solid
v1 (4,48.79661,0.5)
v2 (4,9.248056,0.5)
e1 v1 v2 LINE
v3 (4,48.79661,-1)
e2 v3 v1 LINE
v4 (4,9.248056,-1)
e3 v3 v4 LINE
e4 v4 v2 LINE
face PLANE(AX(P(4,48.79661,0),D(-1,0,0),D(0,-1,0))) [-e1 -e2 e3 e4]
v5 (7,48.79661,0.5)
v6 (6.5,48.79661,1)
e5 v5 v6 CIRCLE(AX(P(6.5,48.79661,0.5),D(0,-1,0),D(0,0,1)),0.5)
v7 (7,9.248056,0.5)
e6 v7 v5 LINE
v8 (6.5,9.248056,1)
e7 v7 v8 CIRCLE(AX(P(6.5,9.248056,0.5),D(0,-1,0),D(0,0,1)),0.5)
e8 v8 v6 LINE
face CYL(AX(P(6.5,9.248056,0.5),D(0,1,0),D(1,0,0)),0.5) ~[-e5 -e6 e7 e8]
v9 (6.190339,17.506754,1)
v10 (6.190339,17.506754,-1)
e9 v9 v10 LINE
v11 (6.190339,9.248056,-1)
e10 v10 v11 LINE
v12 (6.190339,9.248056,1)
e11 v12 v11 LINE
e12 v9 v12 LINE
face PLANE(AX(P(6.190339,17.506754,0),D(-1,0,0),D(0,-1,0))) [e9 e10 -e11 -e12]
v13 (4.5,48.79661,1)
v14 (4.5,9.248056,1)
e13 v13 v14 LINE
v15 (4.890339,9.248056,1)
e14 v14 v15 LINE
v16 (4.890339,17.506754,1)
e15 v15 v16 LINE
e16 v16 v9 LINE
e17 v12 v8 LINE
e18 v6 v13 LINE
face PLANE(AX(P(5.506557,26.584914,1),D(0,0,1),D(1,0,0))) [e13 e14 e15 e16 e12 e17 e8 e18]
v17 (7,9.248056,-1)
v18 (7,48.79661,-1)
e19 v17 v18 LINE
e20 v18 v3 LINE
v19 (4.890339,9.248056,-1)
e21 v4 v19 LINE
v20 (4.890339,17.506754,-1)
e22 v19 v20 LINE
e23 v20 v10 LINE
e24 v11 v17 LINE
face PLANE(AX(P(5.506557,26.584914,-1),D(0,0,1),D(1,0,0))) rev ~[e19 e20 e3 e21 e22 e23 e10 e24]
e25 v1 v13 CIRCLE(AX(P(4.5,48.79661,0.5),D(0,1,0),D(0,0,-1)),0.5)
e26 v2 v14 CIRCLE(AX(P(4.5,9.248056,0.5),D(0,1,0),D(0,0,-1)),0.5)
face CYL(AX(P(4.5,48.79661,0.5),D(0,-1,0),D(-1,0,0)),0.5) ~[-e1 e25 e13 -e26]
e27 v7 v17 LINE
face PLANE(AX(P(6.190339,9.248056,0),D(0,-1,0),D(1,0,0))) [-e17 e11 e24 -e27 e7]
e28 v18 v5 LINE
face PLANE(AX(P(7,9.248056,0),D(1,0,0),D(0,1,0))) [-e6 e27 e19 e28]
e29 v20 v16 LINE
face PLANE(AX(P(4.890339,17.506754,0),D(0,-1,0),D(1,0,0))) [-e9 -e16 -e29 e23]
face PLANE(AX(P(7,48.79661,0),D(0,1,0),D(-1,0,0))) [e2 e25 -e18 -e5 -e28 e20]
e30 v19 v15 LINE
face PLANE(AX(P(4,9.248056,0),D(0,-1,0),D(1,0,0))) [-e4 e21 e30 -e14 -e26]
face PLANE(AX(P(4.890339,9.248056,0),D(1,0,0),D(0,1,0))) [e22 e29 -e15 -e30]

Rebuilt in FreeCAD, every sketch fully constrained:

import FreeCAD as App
import Part
import Sketcher

V = App.Vector


def edges_at(feature, points):
    """Names of the edges that pass closest to the given points."""
    edges = feature.Shape.Edges
    near = lambda p: min(range(len(edges)), key=lambda i: edges[i].distToShape(Part.Vertex(*p))[0])
    return sorted({f"Edge{near(p) + 1}" for p in points})


def add_polygon(sketch, points):
    """Adds a closed chain of lines whose ends are joined by coincident constraints."""
    first, n = sketch.GeometryCount, len(points)
    for a, b in zip(points, points[1:] + points[:1]):
        sketch.addGeometry(Part.LineSegment(App.Vector(*a, 0), App.Vector(*b, 0)), False)
    for i in range(n):
        sketch.addConstraint(Sketcher.Constraint("Coincident", first + i, 2, first + (i + 1) % n, 1))

doc = App.newDocument("Part")
body = doc.addObject("PartDesign::Body", "Body")

# Sketch on XY plane
sketch1 = body.newObject("Sketcher::SketchObject", "Sketch")
sketch1.AttachmentSupport = (doc.getObject("XY_Plane"), [""])
sketch1.MapMode = "FlatFace"
add_polygon(sketch1, [(7, 9.2), (7, 48.8), (4, 48.8), (4, 9.2), (4.9, 9.2), (4.9, 17.5), (6.2, 17.5), (6.2, 9.2)])  # lines 0-7
sketch1.addConstraint([
    Sketcher.Constraint("Vertical", 0),
    Sketcher.Constraint("Horizontal", 1),
    Sketcher.Constraint("Vertical", 2),
    Sketcher.Constraint("Horizontal", 3),
    Sketcher.Constraint("Vertical", 4),
    Sketcher.Constraint("Horizontal", 5),
    Sketcher.Constraint("Vertical", 6),
    Sketcher.Constraint("Horizontal", 7),
    Sketcher.Constraint("Horizontal", 3, 2, 6, 2),
    Sketcher.Constraint("DistanceX", 1, 2, 1, 1, 3.0),
    Sketcher.Constraint("DistanceX", 5, 1, 5, 2, 1.3),
    Sketcher.Constraint("DistanceX", -1, 1, 0, 2, 7.0),
    Sketcher.Constraint("DistanceY", 4, 1, 4, 2, 8.258698),
    Sketcher.Constraint("DistanceX", 3, 1, 3, 2, 0.890339),
    Sketcher.Constraint("DistanceY", 0, 1, 0, 2, 39.548554),
    Sketcher.Constraint("DistanceY", -1, 1, 0, 2, 48.79661),
])
pad1 = body.newObject("PartDesign::Pad", "Pad")
pad1.Profile = sketch1
pad1.Type = "TwoLengths"
pad1.Length = 1
pad1.Length2 = 1
doc.recompute()

fillet = body.newObject("PartDesign::Fillet", "Fillet")
fillet.Base = (pad1, edges_at(pad1, [(4, 29.022, 1), (7, 29.022, 1)]))
fillet.Radius = 0.5

doc.recompute()
